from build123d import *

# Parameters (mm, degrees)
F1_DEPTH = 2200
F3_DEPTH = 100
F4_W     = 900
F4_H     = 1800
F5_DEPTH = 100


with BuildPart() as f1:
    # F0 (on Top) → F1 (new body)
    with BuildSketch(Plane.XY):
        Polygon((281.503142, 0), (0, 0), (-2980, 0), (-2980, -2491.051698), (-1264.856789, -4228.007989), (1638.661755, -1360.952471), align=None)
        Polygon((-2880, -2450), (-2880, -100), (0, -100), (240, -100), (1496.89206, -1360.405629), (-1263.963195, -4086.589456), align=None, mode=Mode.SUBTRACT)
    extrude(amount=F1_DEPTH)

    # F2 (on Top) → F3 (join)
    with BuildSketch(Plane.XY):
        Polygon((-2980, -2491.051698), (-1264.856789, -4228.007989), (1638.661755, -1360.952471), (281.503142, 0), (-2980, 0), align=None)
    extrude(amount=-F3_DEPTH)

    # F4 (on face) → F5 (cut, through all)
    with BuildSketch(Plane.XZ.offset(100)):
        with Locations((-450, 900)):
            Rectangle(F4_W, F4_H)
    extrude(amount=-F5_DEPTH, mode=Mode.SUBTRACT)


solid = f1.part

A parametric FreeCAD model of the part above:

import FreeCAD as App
import Part
import Sketcher
Q = App.Units.Quantity


def add_polygon(sketch, points):
    """Adds a closed chain of lines whose ends are joined by coincident constraints."""
    first, n = sketch.GeometryCount, len(points)
    for a, b in zip(points, points[1:] + points[:1]):
        sketch.addGeometry(Part.LineSegment(App.Vector(*a, 0), App.Vector(*b, 0)), False)
    for i in range(n):
        sketch.addConstraint(Sketcher.Constraint("Coincident", first + i, 2, first + (i + 1) % n, 1))

doc = App.newDocument("Part")
body = doc.addObject("PartDesign::Body", "Body")

sketch1 = body.newObject("Sketcher::SketchObject", "Sketch")
sketch1.AttachmentSupport = (doc.getObject("XY_Plane"), [""])
sketch1.MapMode = "FlatFace"
add_polygon(sketch1, [(282, 0), (-2980, 0), (-2980, -2491), (-1265, -4228), (1639, -1361)])
add_polygon(sketch1, [(-1264, -4087), (-2880, -2450), (-2880, -100), (240, -100), (1497, -1360)])
sketch1.addConstraint(Sketcher.Constraint("Horizontal", 0))
sketch1.addConstraint(Sketcher.Constraint("Vertical", 1))
sketch1.addConstraint(Sketcher.Constraint("Vertical", 6))
sketch1.addConstraint(Sketcher.Constraint("Horizontal", 7))
sketch1.addConstraint(Sketcher.Constraint("PointOnObject", 0, 2, -1))
sketch1.addConstraint(Sketcher.Constraint("Perpendicular", 2, 3))
sketch1.addConstraint(Sketcher.Constraint("Perpendicular", 3, 5))
sketch1.addConstraint(Sketcher.Constraint("Parallel", 4, 8))
sketch1.addConstraint(Sketcher.Constraint("Perpendicular", 5, 9))
sketch1.addConstraint(Sketcher.Constraint("DistanceX", 7, 1, 7, 2, Q("3120 mm")))
sketch1.addConstraint(Sketcher.Constraint("DistanceY", 6, 1, 6, 2, Q("2350 mm")))
sketch1.addConstraint(Sketcher.Constraint("Distance", 5, Q("2300.000001 mm")))
sketch1.addConstraint(Sketcher.Constraint("Distance", 8, Q("1780 mm")))
sketch1.addConstraint(Sketcher.Constraint("Distance", 9, Q("3880 mm")))
sketch1.addConstraint(Sketcher.Constraint("DistanceX", 0, 2, -1, 1, Q("2980 mm")))
sketch1.addConstraint(Sketcher.Constraint("DistanceX", 5, 2, -1, 1, Q("2880 mm")))
sketch1.addConstraint(Sketcher.Constraint("DistanceY", 5, 2, -1, 1, Q("2450 mm")))
sketch1.addConstraint(Sketcher.Constraint("DistanceY", 1, 2, 1, 1, Q("2491.051698 mm")))
sketch1.addConstraint(Sketcher.Constraint("Distance", 3, Q("4080.493509 mm")))
sketch1.addConstraint(Sketcher.Constraint("Distance", 4, Q("1921.996652 mm")))
pad1 = body.newObject("PartDesign::Pad", "Pad")
pad1.Profile = sketch1
pad1.Length = 2200

sketch2 = body.newObject("Sketcher::SketchObject", "Sketch001")
sketch2.AttachmentSupport = (doc.getObject("XY_Plane"), [""])
sketch2.MapMode = "FlatFace"
add_polygon(sketch2, [(-2980, -2491), (-1265, -4228), (1639, -1361), (282, 0), (-2980, 0)])
sketch2.addConstraint(Sketcher.Constraint("Horizontal", 3))
sketch2.addConstraint(Sketcher.Constraint("Vertical", 4))
sketch2.addConstraint(Sketcher.Constraint("PointOnObject", 2, 2, -1))
sketch2.addConstraint(Sketcher.Constraint("Perpendicular", 0, 1))
sketch2.addConstraint(Sketcher.Constraint("DistanceX", 3, 2, -1, 1, Q("2980 mm")))
sketch2.addConstraint(Sketcher.Constraint("DistanceY", 4, 2, 4, 1, Q("2491.051698 mm")))
sketch2.addConstraint(Sketcher.Constraint("Distance", 1, Q("4080.493509 mm")))
sketch2.addConstraint(Sketcher.Constraint("Distance", 2, Q("1921.996652 mm")))
sketch2.addConstraint(Sketcher.Constraint("DistanceX", 3, 2, 3, 1, Q("3261.503142 mm")))
sketch2.addConstraint(Sketcher.Constraint("DistanceX", 0, 2, -1, 1, Q("1264.856789 mm")))
pad2 = body.newObject("PartDesign::Pad", "Pad001")
pad2.Profile = sketch2
pad2.Length = 100
pad2.Reversed = True

sketch3 = body.newObject("Sketcher::SketchObject", "Sketch002")
sketch3.AttachmentSupport = (doc.getObject("XZ_Plane"), [""])
sketch3.MapMode = "FlatFace"
sketch3.AttachmentOffset = App.Placement(App.Vector(0, 0, 100), App.Rotation())
add_polygon(sketch3, [(-900, 1800), (-900, 0), (0, 0), (0, 1800)])
sketch3.addConstraint(Sketcher.Constraint("Vertical", 0))
sketch3.addConstraint(Sketcher.Constraint("Horizontal", 1))
sketch3.addConstraint(Sketcher.Constraint("Vertical", 2))
sketch3.addConstraint(Sketcher.Constraint("Horizontal", 3))
sketch3.addConstraint(Sketcher.Constraint("Coincident", 1, 2, -1, 1))
sketch3.addConstraint(Sketcher.Constraint("DistanceX", 1, 1, 1, 2, Q("900 mm")))
sketch3.addConstraint(Sketcher.Constraint("DistanceY", 0, 2, 0, 1, Q("1800 mm")))
pocket1 = body.newObject("PartDesign::Pocket", "Pocket")
pocket1.Profile = sketch3
pocket1.Type = "ThroughAll"

doc.recompute()
